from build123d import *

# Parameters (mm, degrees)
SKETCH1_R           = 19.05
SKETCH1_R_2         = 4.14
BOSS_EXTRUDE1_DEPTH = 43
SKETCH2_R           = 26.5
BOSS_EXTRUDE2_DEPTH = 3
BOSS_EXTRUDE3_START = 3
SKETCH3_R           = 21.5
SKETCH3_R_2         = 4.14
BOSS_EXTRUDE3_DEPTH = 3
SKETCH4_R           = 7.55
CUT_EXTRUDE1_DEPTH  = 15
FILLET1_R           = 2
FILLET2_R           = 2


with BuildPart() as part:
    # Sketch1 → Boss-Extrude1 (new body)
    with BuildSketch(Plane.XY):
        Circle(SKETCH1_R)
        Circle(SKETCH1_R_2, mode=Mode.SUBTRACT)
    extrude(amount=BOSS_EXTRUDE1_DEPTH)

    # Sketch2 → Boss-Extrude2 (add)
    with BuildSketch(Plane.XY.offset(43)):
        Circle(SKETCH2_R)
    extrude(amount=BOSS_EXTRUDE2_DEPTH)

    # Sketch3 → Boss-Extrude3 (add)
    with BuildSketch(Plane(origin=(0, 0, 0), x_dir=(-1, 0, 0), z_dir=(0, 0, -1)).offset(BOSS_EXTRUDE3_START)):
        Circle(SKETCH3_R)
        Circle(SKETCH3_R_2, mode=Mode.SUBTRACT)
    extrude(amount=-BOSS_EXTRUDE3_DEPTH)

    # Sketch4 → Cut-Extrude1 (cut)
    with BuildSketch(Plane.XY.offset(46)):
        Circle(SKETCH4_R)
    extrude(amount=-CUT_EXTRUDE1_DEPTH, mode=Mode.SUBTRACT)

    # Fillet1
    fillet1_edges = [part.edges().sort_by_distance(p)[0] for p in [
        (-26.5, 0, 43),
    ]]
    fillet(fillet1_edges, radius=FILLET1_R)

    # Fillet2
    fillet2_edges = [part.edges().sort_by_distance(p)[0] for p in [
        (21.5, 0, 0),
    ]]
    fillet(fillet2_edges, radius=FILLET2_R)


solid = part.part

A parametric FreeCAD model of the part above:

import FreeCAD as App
import Part
import Sketcher


def edges_at(feature, points):
    """Names of the edges that pass closest to the given points."""
    edges = feature.Shape.Edges
    near = lambda p: min(range(len(edges)), key=lambda i: edges[i].distToShape(Part.Vertex(*p))[0])
    return sorted({f"Edge{near(p) + 1}" for p in points})

doc = App.newDocument("Part")
params = doc.addObject("Spreadsheet::Sheet", "Params")
for row, (alias, value) in enumerate([
    ("sketch1_diameter", "38.1 mm"),
    ("sketch1_diameter2", "8.28 mm"),
    ("pad1_length", "43 mm"),
    ("sketch2_diameter", "53 mm"),
    ("pad2_length", "3 mm"),
    ("sketch3_diameter", "43 mm"),
    ("sketch3_diameter2", "8.28 mm"),
    ("pad3_length", "3 mm"),
    ("sketch4_diameter", "15.1 mm"),
    ("pocket1_length", "15 mm"),
    ("fillet_radius", "2 mm"),
    ("fillet2_radius", "2 mm"),
], start=1):
    params.set(f"A{row}", alias)
    params.set(f"B{row}", "=" + value)
    params.setAlias(f"B{row}", alias)

body = doc.addObject("PartDesign::Body", "Body")

sketch1 = doc.addObject("Sketcher::SketchObject", "Sketch")
body.addObject(sketch1)
sketch1.AttachmentSupport = (doc.XY_Plane, [""])
sketch1.MapMode = "FlatFace"
sketch1.addGeometry(Part.Circle(App.Vector(0, 0, 0), App.Vector(0, 0, 1), 19.05), False)
sketch1.addGeometry(Part.Circle(App.Vector(0, 0, 0), App.Vector(0, 0, 1), 4.14), False)
sketch1.addConstraint(Sketcher.Constraint("Coincident", 0, 3, -1, 1))
sketch1.addConstraint(Sketcher.Constraint("Coincident", 1, 3, -1, 1))
sketch1.addConstraint(Sketcher.Constraint("Diameter", 0, 38.1))
sketch1.addConstraint(Sketcher.Constraint("Diameter", 1, 8.28))
sketch1.setExpression("Constraints[2]", "Params.sketch1_diameter")
sketch1.setExpression("Constraints[3]", "Params.sketch1_diameter2")
pad1 = doc.addObject("PartDesign::Pad", "Pad")
body.addObject(pad1)
pad1.Profile = sketch1
pad1.setExpression("Length", "Params.pad1_length")

sketch2 = doc.addObject("Sketcher::SketchObject", "Sketch001")
body.addObject(sketch2)
sketch2.AttachmentSupport = (doc.XY_Plane, [""])
sketch2.MapMode = "FlatFace"
sketch2.AttachmentOffset = App.Placement(App.Vector(0, 0, 43), App.Rotation())
sketch2.addGeometry(Part.Circle(App.Vector(0, 0, 0), App.Vector(0, 0, 1), 26.5), False)
sketch2.addConstraint(Sketcher.Constraint("Coincident", 0, 3, -1, 1))
sketch2.addConstraint(Sketcher.Constraint("Diameter", 0, 53.0))
sketch2.setExpression("Constraints[1]", "Params.sketch2_diameter")
pad2 = doc.addObject("PartDesign::Pad", "Pad001")
body.addObject(pad2)
pad2.Profile = sketch2
pad2.setExpression("Length", "Params.pad2_length")

sketch3 = doc.addObject("Sketcher::SketchObject", "Sketch002")
body.addObject(sketch3)
sketch3.AttachmentSupport = (doc.XY_Plane, [""])
sketch3.MapMode = "FlatFace"
sketch3.AttachmentOffset = App.Placement(App.Vector(0, 0, -3), App.Rotation())
sketch3.addGeometry(Part.Circle(App.Vector(0, 0, 0), App.Vector(0, 0, 1), 21.5), False)
sketch3.addGeometry(Part.Circle(App.Vector(0, 0, 0), App.Vector(0, 0, 1), 4.14), False)
sketch3.addConstraint(Sketcher.Constraint("Coincident", 0, 3, -1, 1))
sketch3.addConstraint(Sketcher.Constraint("Coincident", 1, 3, -1, 1))
sketch3.addConstraint(Sketcher.Constraint("Diameter", 0, 43.0))
sketch3.addConstraint(Sketcher.Constraint("Diameter", 1, 8.28))
sketch3.setExpression("Constraints[2]", "Params.sketch3_diameter")
sketch3.setExpression("Constraints[3]", "Params.sketch3_diameter2")
pad3 = doc.addObject("PartDesign::Pad", "Pad002")
body.addObject(pad3)
pad3.Profile = sketch3
pad3.setExpression("Length", "Params.pad3_length")

sketch4 = doc.addObject("Sketcher::SketchObject", "Sketch003")
body.addObject(sketch4)
sketch4.AttachmentSupport = (doc.XY_Plane, [""])
sketch4.MapMode = "FlatFace"
sketch4.AttachmentOffset = App.Placement(App.Vector(0, 0, 46), App.Rotation())
sketch4.addGeometry(Part.Circle(App.Vector(0, 0, 0), App.Vector(0, 0, 1), 7.55), False)
sketch4.addConstraint(Sketcher.Constraint("Coincident", 0, 3, -1, 1))
sketch4.addConstraint(Sketcher.Constraint("Diameter", 0, 15.1))
sketch4.setExpression("Constraints[1]", "Params.sketch4_diameter")
pocket1 = doc.addObject("PartDesign::Pocket", "Pocket")
body.addObject(pocket1)
pocket1.Profile = sketch4
pocket1.setExpression("Length", "Params.pocket1_length")
doc.recompute()

fillet = doc.addObject("PartDesign::Fillet", "Fillet")
body.addObject(fillet)
fillet.Base = (pocket1, edges_at(pocket1, [(-26.5, 0, 43)]))
fillet.setExpression("Radius", "Params.fillet_radius")
doc.recompute()

fillet2 = doc.addObject("PartDesign::Fillet", "Fillet001")
body.addObject(fillet2)
fillet2.Base = (fillet, edges_at(fillet, [(21.5, 0, 0)]))
fillet2.setExpression("Radius", "Params.fillet2_radius")

doc.recompute()
